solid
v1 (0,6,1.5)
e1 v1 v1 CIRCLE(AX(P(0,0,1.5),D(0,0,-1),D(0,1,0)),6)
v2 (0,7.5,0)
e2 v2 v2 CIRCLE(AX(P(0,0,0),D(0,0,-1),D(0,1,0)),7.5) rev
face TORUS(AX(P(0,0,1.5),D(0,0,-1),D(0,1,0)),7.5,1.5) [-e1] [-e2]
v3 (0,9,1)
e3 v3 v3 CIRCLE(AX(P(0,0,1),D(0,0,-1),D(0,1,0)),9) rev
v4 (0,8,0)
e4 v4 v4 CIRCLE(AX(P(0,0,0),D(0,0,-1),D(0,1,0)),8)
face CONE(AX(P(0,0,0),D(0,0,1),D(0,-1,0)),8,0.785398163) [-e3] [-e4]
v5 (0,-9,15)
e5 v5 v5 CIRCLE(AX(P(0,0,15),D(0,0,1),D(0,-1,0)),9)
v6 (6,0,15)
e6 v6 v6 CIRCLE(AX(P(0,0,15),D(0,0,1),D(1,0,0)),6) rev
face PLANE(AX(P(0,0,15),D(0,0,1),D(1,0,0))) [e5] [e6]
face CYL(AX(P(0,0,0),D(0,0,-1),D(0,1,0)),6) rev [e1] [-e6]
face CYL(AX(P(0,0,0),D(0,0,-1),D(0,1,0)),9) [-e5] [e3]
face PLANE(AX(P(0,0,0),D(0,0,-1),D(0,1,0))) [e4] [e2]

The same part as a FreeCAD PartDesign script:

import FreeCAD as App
import Part
import Sketcher

V = App.Vector
Q = App.Units.Quantity


def edges_at(feature, points):
    """Names of the edges that pass closest to the given points."""
    edges = feature.Shape.Edges
    near = lambda p: min(range(len(edges)), key=lambda i: edges[i].distToShape(Part.Vertex(*p))[0])
    return sorted({f"Edge{near(p) + 1}" for p in points})


def add_polygon(sketch, points):
    """Adds a closed chain of lines whose ends are joined by coincident constraints."""
    first, n = sketch.GeometryCount, len(points)
    for a, b in zip(points, points[1:] + points[:1]):
        sketch.addGeometry(Part.LineSegment(App.Vector(*a, 0), App.Vector(*b, 0)), False)
    for i in range(n):
        sketch.addConstraint(Sketcher.Constraint("Coincident", first + i, 2, first + (i + 1) % n, 1))

doc = App.newDocument("Part")
body = doc.addObject("PartDesign::Body", "Body")

sketch1 = body.newObject("Sketcher::SketchObject", "Sketch")
sketch1.AttachmentSupport = (doc.getObject("YZ_Plane"), [""])
sketch1.MapMode = "FlatFace"
add_polygon(sketch1, [(-9, 0), (-6, 0), (-6, 15), (0, 15), (0, 18), (-9, 18)])
sketch1.addConstraint([
    Sketcher.Constraint("Horizontal", 0),
    Sketcher.Constraint("Vertical", 1),
    Sketcher.Constraint("Horizontal", 2),
    Sketcher.Constraint("Vertical", 3),
    Sketcher.Constraint("Horizontal", 4),
    Sketcher.Constraint("Vertical", 5),
    Sketcher.Constraint("PointOnObject", 0, 2, -1),
    Sketcher.Constraint("PointOnObject", 2, 2, -2),
    Sketcher.Constraint("Equal", 0, 3),
    Sketcher.Constraint("DistanceX", 0, 1, 0, 2, Q("3 mm")),
    Sketcher.Constraint("DistanceX", 2, 1, 2, 2, Q("6 mm")),
    Sketcher.Constraint("DistanceY", 1, 1, 1, 2, Q("15 mm")),
])
revolution = body.newObject("PartDesign::Revolution", "Revolution")
revolution.Profile = sketch1
revolution.ReferenceAxis = (sketch1, ["V_Axis"])
revolution.Angle = 360

sketch2 = body.newObject("Sketcher::SketchObject", "Sketch001")
sketch2.AttachmentSupport = (doc.getObject("YZ_Plane"), [""])
sketch2.MapMode = "FlatFace"
add_polygon(sketch2, [(0, 18), (-6.5, 18), (-6.5, 15), (0, 15)])
sketch2.addConstraint([
    Sketcher.Constraint("Horizontal", 0),
    Sketcher.Constraint("Vertical", 1),
    Sketcher.Constraint("Horizontal", 2),
    Sketcher.Constraint("Vertical", 3),
    Sketcher.Constraint("PointOnObject", 2, 2, -2),
    Sketcher.Constraint("DistanceY", 1, 2, 1, 1, Q("3 mm")),
    Sketcher.Constraint("DistanceX", 0, 2, 0, 1, Q("6.5 mm")),
    Sketcher.Constraint("DistanceY", -1, 1, 0, 2, Q("18 mm")),
])
groove = body.newObject("PartDesign::Groove", "Groove")
groove.Profile = sketch2
groove.ReferenceAxis = (sketch2, ["V_Axis"])
groove.Angle = 360

sketch3 = body.newObject("Sketcher::SketchObject", "Sketch002")
sketch3.AttachmentSupport = (doc.getObject("YZ_Plane"), [""])
sketch3.MapMode = "FlatFace"
add_polygon(sketch3, [(0, 18), (-9, 18), (-9, 15), (0, 15)])
sketch3.addConstraint([
    Sketcher.Constraint("Horizontal", 0),
    Sketcher.Constraint("Vertical", 1),
    Sketcher.Constraint("Horizontal", 2),
    Sketcher.Constraint("Vertical", 3),
    Sketcher.Constraint("PointOnObject", 2, 2, -2),
    Sketcher.Constraint("DistanceX", 0, 2, 0, 1, Q("9 mm")),
    Sketcher.Constraint("DistanceY", 1, 2, 1, 1, Q("3 mm")),
    Sketcher.Constraint("DistanceY", -1, 1, 0, 2, Q("18 mm")),
])
groove2 = body.newObject("PartDesign::Groove", "Groove001")
groove2.Profile = sketch3
groove2.ReferenceAxis = (sketch3, ["V_Axis"])
groove2.Angle = 360
doc.recompute()

chamfer = body.newObject("PartDesign::Chamfer", "Chamfer")
chamfer.Base = (groove2, edges_at(groove2, [(0, -9, 0)]))
chamfer.Size = 1
doc.recompute()

fillet = body.newObject("PartDesign::Fillet", "Fillet")
fillet.Base = (chamfer, edges_at(chamfer, [(0, -6, 0)]))
fillet.Radius = 1.5

doc.recompute()
